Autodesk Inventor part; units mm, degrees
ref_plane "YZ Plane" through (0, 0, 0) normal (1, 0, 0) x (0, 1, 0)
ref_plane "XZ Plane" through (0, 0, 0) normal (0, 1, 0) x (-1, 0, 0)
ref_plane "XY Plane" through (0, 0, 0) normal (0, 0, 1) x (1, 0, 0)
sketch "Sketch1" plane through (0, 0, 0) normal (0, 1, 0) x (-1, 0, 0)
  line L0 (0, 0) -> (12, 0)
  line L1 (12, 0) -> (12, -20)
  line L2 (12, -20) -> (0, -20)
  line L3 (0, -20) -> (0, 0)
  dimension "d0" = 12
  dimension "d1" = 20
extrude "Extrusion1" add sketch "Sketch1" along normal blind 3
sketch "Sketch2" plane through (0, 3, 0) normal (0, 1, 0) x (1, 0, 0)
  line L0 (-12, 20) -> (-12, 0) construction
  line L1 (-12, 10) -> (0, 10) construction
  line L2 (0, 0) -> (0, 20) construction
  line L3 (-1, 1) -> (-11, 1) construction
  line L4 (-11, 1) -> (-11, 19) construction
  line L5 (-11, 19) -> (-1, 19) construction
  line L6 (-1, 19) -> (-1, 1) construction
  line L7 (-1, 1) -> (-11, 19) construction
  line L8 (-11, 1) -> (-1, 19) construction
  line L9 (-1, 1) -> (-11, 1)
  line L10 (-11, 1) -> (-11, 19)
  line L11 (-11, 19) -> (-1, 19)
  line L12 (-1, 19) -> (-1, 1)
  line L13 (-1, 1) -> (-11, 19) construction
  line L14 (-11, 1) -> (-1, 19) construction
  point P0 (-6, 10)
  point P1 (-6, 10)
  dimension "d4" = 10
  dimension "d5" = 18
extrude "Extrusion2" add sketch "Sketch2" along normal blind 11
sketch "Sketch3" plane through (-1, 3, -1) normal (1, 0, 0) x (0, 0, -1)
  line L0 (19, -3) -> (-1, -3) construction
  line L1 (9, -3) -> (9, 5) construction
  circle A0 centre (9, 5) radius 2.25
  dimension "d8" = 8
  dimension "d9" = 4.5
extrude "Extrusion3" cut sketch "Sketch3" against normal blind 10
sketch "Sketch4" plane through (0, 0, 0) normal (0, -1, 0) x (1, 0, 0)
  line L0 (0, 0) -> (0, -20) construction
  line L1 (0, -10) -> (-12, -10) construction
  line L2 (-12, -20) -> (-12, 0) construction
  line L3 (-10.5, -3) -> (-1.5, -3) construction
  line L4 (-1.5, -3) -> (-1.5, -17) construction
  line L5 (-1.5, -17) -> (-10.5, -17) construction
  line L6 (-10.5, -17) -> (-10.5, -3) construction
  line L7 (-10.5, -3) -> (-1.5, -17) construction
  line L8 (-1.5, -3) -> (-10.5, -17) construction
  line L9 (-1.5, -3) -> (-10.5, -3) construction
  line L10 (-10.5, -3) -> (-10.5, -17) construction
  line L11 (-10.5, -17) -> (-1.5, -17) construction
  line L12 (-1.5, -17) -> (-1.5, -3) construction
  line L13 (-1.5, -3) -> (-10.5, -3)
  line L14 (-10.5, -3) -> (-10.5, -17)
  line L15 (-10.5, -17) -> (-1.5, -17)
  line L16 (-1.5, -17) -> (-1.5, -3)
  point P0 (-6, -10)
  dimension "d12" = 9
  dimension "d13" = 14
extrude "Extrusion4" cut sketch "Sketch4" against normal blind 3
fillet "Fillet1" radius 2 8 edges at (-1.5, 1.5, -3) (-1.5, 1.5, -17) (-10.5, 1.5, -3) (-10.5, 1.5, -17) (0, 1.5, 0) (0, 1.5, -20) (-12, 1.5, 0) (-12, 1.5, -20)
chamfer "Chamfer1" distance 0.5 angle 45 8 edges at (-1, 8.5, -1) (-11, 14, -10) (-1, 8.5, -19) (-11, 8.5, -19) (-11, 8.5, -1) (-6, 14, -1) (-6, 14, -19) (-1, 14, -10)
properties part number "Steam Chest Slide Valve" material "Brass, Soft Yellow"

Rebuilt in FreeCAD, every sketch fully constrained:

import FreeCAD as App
import Part
import Sketcher

V = App.Vector
Q = App.Units.Quantity


def edges_at(feature, points):
    """Names of the edges that pass closest to the given points."""
    edges = feature.Shape.Edges
    near = lambda p: min(range(len(edges)), key=lambda i: edges[i].distToShape(Part.Vertex(*p))[0])
    return sorted({f"Edge{near(p) + 1}" for p in points})


def add_polygon(sketch, points):
    """Adds a closed chain of lines whose ends are joined by coincident constraints."""
    first, n = sketch.GeometryCount, len(points)
    for a, b in zip(points, points[1:] + points[:1]):
        sketch.addGeometry(Part.LineSegment(App.Vector(*a, 0), App.Vector(*b, 0)), False)
    for i in range(n):
        sketch.addConstraint(Sketcher.Constraint("Coincident", first + i, 2, first + (i + 1) % n, 1))

doc = App.newDocument("Part")
body = doc.addObject("PartDesign::Body", "Body")

# Sketch on XZ plane
sketch1 = body.newObject("Sketcher::SketchObject", "Sketch")
sketch1.AttachmentSupport = (doc.getObject("XZ_Plane"), [""])
sketch1.MapMode = "FlatFace"
add_polygon(sketch1, [(-12, 0), (0, 0), (0, -20), (-12, -20)])  # lines 0-3
sketch1.addConstraint(Sketcher.Constraint("Horizontal", 0))
sketch1.addConstraint(Sketcher.Constraint("Vertical", 1))
sketch1.addConstraint(Sketcher.Constraint("Horizontal", 2))
sketch1.addConstraint(Sketcher.Constraint("Vertical", 3))
sketch1.addConstraint(Sketcher.Constraint("Coincident", 0, 2, -1, 1))
sketch1.addConstraint(Sketcher.Constraint("DistanceX", 0, 1, 0, 2, Q("12 mm")))
sketch1.addConstraint(Sketcher.Constraint("DistanceY", 1, 2, 1, 1, Q("20 mm")))
pad1 = body.newObject("PartDesign::Pad", "Pad")
pad1.Profile = sketch1
pad1.Length = 3
pad1.Reversed = True

# Sketch on XZ plane
sketch2 = body.newObject("Sketcher::SketchObject", "Sketch001")
sketch2.AttachmentSupport = (doc.getObject("XZ_Plane"), [""])
sketch2.MapMode = "FlatFace"
sketch2.AttachmentOffset = App.Placement(V(0, 0, -3), App.Rotation())
add_polygon(sketch2, [(-11, -1), (-1, -1), (-1, -19), (-11, -19)])  # lines 0-3
sketch2.addConstraint(Sketcher.Constraint("Horizontal", 0))
sketch2.addConstraint(Sketcher.Constraint("Vertical", 1))
sketch2.addConstraint(Sketcher.Constraint("Horizontal", 2))
sketch2.addConstraint(Sketcher.Constraint("Vertical", 3))
sketch2.addConstraint(Sketcher.Constraint("DistanceX", 0, 1, 0, 2, Q("10 mm")))
sketch2.addConstraint(Sketcher.Constraint("DistanceY", 1, 2, 1, 1, Q("18 mm")))
sketch2.addConstraint(Sketcher.Constraint("DistanceX", 0, 2, -1, 1, Q("1 mm")))
sketch2.addConstraint(Sketcher.Constraint("DistanceY", 0, 2, -1, 1, Q("1 mm")))
pad2 = body.newObject("PartDesign::Pad", "Pad001")
pad2.Profile = sketch2
pad2.Length = 11
pad2.Reversed = True

# Sketch on YZ plane
sketch3 = body.newObject("Sketcher::SketchObject", "Sketch002")
sketch3.AttachmentSupport = (doc.getObject("YZ_Plane"), [""])
sketch3.MapMode = "FlatFace"
sketch3.AttachmentOffset = App.Placement(V(0, 0, -1), App.Rotation())
sketch3.addGeometry(Part.Circle(V(8, -10, 0), V(0, 0, 1), 2.2), False)
sketch3.addConstraint(Sketcher.Constraint("Diameter", 0, Q("4.5 mm")))
sketch3.addConstraint(Sketcher.Constraint("DistanceX", -1, 1, 0, 3, Q("8 mm")))
sketch3.addConstraint(Sketcher.Constraint("DistanceY", 0, 3, -1, 1, Q("10 mm")))
pocket1 = body.newObject("PartDesign::Pocket", "Pocket")
pocket1.Profile = sketch3
pocket1.Length = 10

# Sketch on XZ plane
sketch4 = body.newObject("Sketcher::SketchObject", "Sketch003")
sketch4.AttachmentSupport = (doc.getObject("XZ_Plane"), [""])
sketch4.MapMode = "FlatFace"
add_polygon(sketch4, [(-2, -17), (-2, -3), (-10, -3), (-10, -17)])  # lines 0-3
sketch4.addConstraint(Sketcher.Constraint("Vertical", 0))
sketch4.addConstraint(Sketcher.Constraint("Horizontal", 1))
sketch4.addConstraint(Sketcher.Constraint("Vertical", 2))
sketch4.addConstraint(Sketcher.Constraint("Horizontal", 3))
sketch4.addConstraint(Sketcher.Constraint("DistanceX", 1, 2, 1, 1, Q("9 mm")))
sketch4.addConstraint(Sketcher.Constraint("DistanceY", 0, 1, 0, 2, Q("14 mm")))
sketch4.addConstraint(Sketcher.Constraint("DistanceY", 0, 2, -1, 1, Q("3 mm")))
sketch4.addConstraint(Sketcher.Constraint("DistanceX", 0, 2, -1, 1, Q("1.5 mm")))
pocket2 = body.newObject("PartDesign::Pocket", "Pocket001")
pocket2.Profile = sketch4
pocket2.Length = 3
doc.recompute()

fillet = body.newObject("PartDesign::Fillet", "Fillet")
fillet.Base = (pocket2, edges_at(pocket2, [
    (-1.5, 1.5, -3),
    (-1.5, 1.5, -17),
    (-10.5, 1.5, -3),
    (-10.5, 1.5, -17),
    (0, 1.5, 0),
    (0, 1.5, -20),
    (-12, 1.5, 0),
    (-12, 1.5, -20),
]))
fillet.Radius = 2
doc.recompute()

chamfer = body.newObject("PartDesign::Chamfer", "Chamfer")
chamfer.Base = (fillet, edges_at(fillet, [
    (-1, 8.5, -1),
    (-11, 14, -10),
    (-1, 8.5, -19),
    (-11, 8.5, -19),
    (-11, 8.5, -1),
    (-6, 14, -1),
    (-6, 14, -19),
    (-1, 14, -10),
]))
chamfer.Size = 0.5

doc.recompute()
